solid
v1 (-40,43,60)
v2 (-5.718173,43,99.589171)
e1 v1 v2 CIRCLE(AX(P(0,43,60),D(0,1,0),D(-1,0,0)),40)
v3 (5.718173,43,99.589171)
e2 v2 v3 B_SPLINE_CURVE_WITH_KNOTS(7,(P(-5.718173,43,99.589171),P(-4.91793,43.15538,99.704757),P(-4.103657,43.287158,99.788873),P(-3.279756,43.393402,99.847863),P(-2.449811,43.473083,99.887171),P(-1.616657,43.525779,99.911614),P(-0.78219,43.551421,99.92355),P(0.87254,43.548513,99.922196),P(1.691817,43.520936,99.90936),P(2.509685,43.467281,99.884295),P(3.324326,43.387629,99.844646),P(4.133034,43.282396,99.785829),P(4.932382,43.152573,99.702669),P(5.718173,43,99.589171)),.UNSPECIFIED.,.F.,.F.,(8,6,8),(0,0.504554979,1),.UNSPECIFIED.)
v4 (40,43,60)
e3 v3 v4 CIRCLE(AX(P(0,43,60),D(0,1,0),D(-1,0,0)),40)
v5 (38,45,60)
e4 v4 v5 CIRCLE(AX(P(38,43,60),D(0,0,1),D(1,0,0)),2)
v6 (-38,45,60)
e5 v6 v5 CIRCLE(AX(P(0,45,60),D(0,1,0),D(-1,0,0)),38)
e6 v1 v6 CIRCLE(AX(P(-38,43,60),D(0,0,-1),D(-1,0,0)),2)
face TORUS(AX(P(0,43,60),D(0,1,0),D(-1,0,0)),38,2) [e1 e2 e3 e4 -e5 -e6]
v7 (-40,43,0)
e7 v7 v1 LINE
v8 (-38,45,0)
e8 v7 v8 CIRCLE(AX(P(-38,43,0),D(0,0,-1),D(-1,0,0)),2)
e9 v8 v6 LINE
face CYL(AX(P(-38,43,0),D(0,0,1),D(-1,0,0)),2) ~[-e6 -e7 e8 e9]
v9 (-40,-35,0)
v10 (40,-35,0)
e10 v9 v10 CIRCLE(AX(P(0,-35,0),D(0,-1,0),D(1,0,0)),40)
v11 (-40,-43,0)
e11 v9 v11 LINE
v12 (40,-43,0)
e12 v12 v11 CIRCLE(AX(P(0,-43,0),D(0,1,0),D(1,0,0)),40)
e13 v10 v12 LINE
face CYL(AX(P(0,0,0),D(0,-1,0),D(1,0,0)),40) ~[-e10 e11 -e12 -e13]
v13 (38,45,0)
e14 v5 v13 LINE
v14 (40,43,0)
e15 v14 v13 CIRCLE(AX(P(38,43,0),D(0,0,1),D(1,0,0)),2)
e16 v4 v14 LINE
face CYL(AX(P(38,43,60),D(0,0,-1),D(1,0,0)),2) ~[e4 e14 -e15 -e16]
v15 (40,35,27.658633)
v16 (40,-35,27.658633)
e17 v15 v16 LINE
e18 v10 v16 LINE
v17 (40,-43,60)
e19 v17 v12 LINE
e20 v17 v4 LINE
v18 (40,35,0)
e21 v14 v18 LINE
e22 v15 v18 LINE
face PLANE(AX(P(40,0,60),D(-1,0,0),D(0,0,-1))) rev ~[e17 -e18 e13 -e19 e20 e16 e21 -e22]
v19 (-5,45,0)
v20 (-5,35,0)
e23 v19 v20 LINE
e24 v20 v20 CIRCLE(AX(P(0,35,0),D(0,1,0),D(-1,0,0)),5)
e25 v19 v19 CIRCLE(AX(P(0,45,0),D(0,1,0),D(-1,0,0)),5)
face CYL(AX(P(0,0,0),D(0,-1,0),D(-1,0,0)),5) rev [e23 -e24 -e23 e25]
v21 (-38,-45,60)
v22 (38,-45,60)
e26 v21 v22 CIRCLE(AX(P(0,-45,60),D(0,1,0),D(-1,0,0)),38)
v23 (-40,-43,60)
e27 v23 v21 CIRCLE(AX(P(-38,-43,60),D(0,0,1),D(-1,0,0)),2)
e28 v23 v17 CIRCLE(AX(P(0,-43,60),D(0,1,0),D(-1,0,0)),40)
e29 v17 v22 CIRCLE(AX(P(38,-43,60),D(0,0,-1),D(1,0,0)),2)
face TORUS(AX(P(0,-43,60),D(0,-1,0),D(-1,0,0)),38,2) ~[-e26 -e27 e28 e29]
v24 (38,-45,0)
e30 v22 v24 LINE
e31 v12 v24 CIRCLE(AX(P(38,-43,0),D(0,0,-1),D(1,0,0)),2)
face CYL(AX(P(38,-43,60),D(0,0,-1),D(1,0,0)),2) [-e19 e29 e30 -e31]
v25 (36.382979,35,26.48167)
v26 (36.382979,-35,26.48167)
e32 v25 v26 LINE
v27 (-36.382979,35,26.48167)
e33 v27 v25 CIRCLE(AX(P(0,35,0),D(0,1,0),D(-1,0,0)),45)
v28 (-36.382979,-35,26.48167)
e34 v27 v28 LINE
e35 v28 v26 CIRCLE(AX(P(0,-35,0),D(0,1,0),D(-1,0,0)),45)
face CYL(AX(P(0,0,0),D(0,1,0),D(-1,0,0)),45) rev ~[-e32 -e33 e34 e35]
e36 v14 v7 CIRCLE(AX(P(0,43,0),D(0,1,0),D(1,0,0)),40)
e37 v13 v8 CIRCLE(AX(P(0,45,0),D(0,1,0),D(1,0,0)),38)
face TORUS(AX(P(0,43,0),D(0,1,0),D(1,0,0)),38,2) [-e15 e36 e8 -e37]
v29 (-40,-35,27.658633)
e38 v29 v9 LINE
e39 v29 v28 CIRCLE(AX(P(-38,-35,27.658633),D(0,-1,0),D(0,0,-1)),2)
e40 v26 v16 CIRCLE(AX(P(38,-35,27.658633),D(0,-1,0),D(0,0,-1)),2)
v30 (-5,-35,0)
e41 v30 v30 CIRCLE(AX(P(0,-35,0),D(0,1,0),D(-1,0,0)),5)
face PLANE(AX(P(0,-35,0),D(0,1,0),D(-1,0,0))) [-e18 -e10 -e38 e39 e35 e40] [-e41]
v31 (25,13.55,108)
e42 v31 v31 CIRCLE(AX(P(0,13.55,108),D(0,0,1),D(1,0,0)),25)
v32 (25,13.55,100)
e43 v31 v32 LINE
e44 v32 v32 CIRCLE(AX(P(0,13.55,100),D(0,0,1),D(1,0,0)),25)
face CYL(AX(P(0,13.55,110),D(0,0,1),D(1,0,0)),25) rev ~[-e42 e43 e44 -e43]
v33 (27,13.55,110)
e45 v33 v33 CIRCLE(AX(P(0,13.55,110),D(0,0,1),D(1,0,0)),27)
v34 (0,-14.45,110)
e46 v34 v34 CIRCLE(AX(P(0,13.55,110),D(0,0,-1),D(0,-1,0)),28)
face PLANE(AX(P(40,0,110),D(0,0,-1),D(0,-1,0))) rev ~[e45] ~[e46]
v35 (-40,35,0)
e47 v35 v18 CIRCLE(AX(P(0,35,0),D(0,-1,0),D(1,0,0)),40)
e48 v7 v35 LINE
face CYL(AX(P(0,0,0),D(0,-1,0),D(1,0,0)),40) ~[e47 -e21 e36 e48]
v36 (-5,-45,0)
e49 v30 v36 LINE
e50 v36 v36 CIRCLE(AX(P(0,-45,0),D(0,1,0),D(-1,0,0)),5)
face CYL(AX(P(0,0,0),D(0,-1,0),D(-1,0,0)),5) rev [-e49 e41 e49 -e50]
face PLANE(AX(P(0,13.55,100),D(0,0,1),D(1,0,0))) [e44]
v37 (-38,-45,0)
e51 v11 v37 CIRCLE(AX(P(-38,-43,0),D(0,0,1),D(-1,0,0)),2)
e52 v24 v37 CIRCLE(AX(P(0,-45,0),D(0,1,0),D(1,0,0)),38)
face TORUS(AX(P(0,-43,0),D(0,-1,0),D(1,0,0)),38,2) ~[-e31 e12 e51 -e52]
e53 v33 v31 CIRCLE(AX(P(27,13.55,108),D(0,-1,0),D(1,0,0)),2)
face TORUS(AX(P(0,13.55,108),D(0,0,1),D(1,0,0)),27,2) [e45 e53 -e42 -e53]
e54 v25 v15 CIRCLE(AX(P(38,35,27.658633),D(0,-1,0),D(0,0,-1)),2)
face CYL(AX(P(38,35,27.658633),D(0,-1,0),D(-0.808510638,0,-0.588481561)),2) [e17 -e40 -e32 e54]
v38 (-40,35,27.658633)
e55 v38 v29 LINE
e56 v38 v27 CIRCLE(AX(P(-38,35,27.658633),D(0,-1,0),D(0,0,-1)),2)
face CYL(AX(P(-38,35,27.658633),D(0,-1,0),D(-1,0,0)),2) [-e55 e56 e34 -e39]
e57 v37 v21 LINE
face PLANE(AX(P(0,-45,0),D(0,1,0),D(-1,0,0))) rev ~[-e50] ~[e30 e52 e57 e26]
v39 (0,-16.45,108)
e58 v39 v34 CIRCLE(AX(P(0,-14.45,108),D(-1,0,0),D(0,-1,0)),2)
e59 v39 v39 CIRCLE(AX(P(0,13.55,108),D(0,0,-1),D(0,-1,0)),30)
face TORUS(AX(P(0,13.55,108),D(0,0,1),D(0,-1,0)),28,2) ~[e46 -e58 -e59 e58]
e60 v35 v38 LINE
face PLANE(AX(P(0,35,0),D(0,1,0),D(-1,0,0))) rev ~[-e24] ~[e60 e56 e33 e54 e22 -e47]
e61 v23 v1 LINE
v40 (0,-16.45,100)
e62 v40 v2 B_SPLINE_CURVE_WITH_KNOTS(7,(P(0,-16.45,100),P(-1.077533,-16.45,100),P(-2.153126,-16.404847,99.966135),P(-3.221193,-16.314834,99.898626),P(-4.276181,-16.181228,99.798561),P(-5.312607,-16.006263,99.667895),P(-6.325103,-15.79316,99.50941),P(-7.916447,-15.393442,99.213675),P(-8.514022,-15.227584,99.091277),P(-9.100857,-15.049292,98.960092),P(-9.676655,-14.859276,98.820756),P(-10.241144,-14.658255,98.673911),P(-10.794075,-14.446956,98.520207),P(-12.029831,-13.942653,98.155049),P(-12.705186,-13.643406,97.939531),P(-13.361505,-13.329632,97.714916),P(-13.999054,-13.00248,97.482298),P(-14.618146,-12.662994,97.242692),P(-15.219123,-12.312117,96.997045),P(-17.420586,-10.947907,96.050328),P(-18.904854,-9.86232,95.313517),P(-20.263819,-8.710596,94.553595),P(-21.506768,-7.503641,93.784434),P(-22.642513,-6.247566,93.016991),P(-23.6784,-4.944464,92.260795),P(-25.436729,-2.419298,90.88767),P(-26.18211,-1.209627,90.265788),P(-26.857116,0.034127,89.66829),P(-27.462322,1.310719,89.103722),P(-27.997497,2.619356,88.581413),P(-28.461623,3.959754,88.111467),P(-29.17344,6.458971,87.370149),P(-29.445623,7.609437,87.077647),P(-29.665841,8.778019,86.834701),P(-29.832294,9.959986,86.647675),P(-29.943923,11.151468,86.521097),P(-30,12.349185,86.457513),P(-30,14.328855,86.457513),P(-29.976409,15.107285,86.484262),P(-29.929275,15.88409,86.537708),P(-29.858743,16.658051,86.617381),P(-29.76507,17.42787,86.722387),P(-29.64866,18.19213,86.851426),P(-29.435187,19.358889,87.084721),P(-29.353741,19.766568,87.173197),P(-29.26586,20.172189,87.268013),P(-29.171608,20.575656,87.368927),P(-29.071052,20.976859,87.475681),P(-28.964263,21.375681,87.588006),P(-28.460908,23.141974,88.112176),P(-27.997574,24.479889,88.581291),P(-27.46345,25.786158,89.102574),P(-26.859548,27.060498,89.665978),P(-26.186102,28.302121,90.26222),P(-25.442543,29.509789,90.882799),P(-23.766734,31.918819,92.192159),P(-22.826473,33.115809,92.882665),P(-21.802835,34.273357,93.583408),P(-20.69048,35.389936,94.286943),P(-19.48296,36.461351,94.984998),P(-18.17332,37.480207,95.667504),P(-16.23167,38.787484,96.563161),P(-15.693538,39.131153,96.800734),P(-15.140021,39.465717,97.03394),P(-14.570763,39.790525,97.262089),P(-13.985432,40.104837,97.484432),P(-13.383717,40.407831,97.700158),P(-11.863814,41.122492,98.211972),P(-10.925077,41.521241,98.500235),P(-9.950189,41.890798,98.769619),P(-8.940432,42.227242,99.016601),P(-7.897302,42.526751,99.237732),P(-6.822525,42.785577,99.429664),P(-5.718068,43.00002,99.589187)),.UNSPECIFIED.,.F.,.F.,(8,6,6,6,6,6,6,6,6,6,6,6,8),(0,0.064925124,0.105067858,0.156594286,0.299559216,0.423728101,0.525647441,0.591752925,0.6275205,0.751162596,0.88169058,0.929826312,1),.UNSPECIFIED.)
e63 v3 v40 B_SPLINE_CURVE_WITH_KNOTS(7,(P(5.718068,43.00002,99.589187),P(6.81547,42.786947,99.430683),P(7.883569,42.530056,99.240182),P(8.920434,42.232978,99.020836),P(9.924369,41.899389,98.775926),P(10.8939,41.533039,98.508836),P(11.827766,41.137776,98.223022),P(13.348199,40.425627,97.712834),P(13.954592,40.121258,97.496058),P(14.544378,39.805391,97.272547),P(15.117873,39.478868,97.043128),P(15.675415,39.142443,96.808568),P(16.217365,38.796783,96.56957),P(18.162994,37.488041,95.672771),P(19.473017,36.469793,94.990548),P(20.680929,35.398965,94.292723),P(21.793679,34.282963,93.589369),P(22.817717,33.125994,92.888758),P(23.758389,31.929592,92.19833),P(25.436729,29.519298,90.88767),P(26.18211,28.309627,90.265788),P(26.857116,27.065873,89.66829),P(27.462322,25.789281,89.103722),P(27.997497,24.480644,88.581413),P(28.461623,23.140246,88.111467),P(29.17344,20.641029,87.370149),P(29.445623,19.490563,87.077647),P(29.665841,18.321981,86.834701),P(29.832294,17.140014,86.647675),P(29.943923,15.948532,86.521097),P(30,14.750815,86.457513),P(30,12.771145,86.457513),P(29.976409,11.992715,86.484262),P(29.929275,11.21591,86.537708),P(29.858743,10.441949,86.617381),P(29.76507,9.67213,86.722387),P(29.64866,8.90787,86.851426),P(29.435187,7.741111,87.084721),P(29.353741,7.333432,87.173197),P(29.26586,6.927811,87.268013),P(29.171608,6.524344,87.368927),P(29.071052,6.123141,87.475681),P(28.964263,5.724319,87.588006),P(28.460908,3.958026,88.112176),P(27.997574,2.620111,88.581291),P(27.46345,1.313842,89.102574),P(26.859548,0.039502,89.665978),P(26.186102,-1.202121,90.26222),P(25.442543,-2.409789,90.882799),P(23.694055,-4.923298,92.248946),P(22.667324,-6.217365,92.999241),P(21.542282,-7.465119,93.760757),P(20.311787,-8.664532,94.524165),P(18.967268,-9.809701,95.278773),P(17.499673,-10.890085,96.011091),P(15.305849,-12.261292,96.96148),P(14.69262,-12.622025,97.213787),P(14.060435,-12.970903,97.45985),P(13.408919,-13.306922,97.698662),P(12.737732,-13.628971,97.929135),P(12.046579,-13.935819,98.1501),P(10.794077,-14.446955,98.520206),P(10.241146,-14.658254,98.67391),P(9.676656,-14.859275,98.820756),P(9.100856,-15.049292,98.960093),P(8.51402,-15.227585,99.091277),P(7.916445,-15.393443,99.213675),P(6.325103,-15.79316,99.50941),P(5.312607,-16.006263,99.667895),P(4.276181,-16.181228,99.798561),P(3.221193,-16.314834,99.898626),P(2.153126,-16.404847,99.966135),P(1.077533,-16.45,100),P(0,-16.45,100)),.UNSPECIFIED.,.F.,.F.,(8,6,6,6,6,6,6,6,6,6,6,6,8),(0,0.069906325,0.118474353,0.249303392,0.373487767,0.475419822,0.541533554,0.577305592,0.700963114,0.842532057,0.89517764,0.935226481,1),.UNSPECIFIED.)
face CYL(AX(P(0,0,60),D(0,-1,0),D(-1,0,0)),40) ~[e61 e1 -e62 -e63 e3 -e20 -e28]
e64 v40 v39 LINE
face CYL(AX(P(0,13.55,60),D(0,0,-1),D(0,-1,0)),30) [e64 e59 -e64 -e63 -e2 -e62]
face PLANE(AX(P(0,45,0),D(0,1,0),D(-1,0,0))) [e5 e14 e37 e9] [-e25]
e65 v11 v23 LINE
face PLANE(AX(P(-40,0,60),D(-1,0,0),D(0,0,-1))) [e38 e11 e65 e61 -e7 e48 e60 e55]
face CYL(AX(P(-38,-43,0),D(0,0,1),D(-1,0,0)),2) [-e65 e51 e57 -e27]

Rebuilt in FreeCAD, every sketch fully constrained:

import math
import FreeCAD as App
import Part
import Sketcher


def edges_at(feature, points):
    """Names of the edges that pass closest to the given points."""
    edges = feature.Shape.Edges
    near = lambda p: min(range(len(edges)), key=lambda i: edges[i].distToShape(Part.Vertex(*p))[0])
    return sorted({f"Edge{near(p) + 1}" for p in points})

doc = App.newDocument("Part")
body = doc.addObject("PartDesign::Body", "Body")

# Sketch on XZ plane
sketch1 = body.newObject("Sketcher::SketchObject", "Sketch")
sketch1.AttachmentSupport = (doc.getObject("XZ_Plane"), [""])
sketch1.MapMode = "FlatFace"
sketch1.addGeometry([
    Part.LineSegment(App.Vector(-40, 0, 0), App.Vector(-40, 60, 0)),  # 0
    Part.ArcOfCircle(Part.Circle(App.Vector(0, 60, 0), App.Vector(0, 0, 1), 40), math.radians(0), math.radians(180)),  # 1
    Part.LineSegment(App.Vector(40, 60, 0), App.Vector(40, 0, 0)),  # 2
    Part.ArcOfCircle(Part.Circle(App.Vector(0, 0, 0), App.Vector(0, 0, 1), 40), math.radians(180), math.radians(360)),  # 3
    Part.Circle(App.Vector(0, 0, 0), App.Vector(0, 0, 1), 5),  # 4
], False)
sketch1.addConstraint([
    Sketcher.Constraint("Tangent", 0, 2, 1, 2),
    Sketcher.Constraint("Tangent", 1, 1, 2, 1),
    Sketcher.Constraint("Tangent", 2, 2, 3, 2),
    Sketcher.Constraint("Tangent", 3, 1, 0, 1),
    Sketcher.Constraint("Vertical", 0),
    Sketcher.Constraint("Vertical", 2),
    Sketcher.Constraint("Coincident", 3, 3, -1, 1),
    Sketcher.Constraint("Coincident", 4, 3, -1, 1),
    Sketcher.Constraint("Diameter", 4, 10.0),
    Sketcher.Constraint("Radius", 1, 40.0),
    Sketcher.Constraint("DistanceY", 0, 1, 0, 2, 60.0),
])
pad1 = body.newObject("PartDesign::Pad", "Pad")
pad1.Profile = sketch1
pad1.Length = 90
pad1.Midplane = True

# Sketch on XZ plane
sketch2 = body.newObject("Sketcher::SketchObject", "Sketch001")
sketch2.AttachmentSupport = (doc.getObject("XZ_Plane"), [""])
sketch2.MapMode = "FlatFace"
sketch2.addGeometry([
    Part.Circle(App.Vector(0, 0, 0), App.Vector(0, 0, 1), 45),
    Part.Circle(App.Vector(0, 0, 0), App.Vector(0, 0, 1), 5),
], False)
sketch2.addConstraint([
    Sketcher.Constraint("Coincident", 0, 3, -1, 1),
    Sketcher.Constraint("Coincident", 1, 3, -1, 1),
    Sketcher.Constraint("Diameter", 0, 90.0),
    Sketcher.Constraint("Diameter", 1, 10.0),
])
pocket1 = body.newObject("PartDesign::Pocket", "Pocket")
pocket1.Profile = sketch2
pocket1.Length = 70
pocket1.Midplane = True
doc.recompute()

fillet = body.newObject("PartDesign::Fillet", "Fillet")
fillet.Base = (pocket1, edges_at(pocket1, [
    (40, 0, 20.616),
    (-40, 0, 20.616),
    (0, 45, -40),
    (-40, 45, 30),
    (0, 45, 100),
    (40, 45, 30),
    (0, -45, 100),
    (-40, -45, 30),
    (0, -45, -40),
    (40, -45, 30),
]))
fillet.Radius = 2

# Sketch on XY plane
sketch3 = body.newObject("Sketcher::SketchObject", "Sketch002")
sketch3.AttachmentSupport = (doc.getObject("XY_Plane"), [""])
sketch3.MapMode = "FlatFace"
sketch3.AttachmentOffset = App.Placement(App.Vector(0, 0, 60), App.Rotation())
sketch3.addGeometry(Part.Circle(App.Vector(0, 14, 0), App.Vector(0, 0, 1), 30), False)
sketch3.addConstraint([
    Sketcher.Constraint("PointOnObject", 0, 3, -2),
    Sketcher.Constraint("Diameter", 0, 60.0),
    Sketcher.Constraint("DistanceY", -1, 1, 0, 3, 13.55),
])
pad2 = body.newObject("PartDesign::Pad", "Pad001")
pad2.Profile = sketch3
pad2.Length = 50

# Sketch on XY plane
sketch4 = body.newObject("Sketcher::SketchObject", "Sketch003")
sketch4.AttachmentSupport = (doc.getObject("XY_Plane"), [""])
sketch4.MapMode = "FlatFace"
sketch4.AttachmentOffset = App.Placement(App.Vector(0, 0, 110), App.Rotation())
sketch4.addGeometry(Part.Circle(App.Vector(0, 14, 0), App.Vector(0, 0, 1), 25), False)
sketch4.addConstraint([
    Sketcher.Constraint("PointOnObject", 0, 3, -2),
    Sketcher.Constraint("Diameter", 0, 50.0),
    Sketcher.Constraint("DistanceY", -1, 1, 0, 3, 13.55),
])
pocket2 = body.newObject("PartDesign::Pocket", "Pocket001")
pocket2.Profile = sketch4
pocket2.Length = 10
doc.recompute()

fillet2 = body.newObject("PartDesign::Fillet", "Fillet001")
fillet2.Base = (pocket2, edges_at(pocket2, [(0, 43.55, 110), (-25, 13.55, 110)]))
fillet2.Radius = 2

doc.recompute()
